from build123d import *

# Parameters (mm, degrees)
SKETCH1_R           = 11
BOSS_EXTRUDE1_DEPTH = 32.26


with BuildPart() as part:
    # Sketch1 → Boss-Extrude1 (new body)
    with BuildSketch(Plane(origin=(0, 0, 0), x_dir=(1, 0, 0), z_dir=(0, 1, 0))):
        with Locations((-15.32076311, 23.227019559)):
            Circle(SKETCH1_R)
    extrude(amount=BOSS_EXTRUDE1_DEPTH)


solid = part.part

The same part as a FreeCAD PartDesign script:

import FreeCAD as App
import Part
import Sketcher
Q = App.Units.Quantity

doc = App.newDocument("Part")
params = doc.addObject("Spreadsheet::Sheet", "Params")
for row, (alias, value) in enumerate([
    ("sketch1_diameter", "22 mm"),
    ("pad1_length", "32.26 mm"),
], start=1):
    params.set(f"A{row}", alias)
    params.set(f"B{row}", "=" + value)
    params.setAlias(f"B{row}", alias)

body = doc.addObject("PartDesign::Body", "Body")

sketch1 = body.newObject("Sketcher::SketchObject", "Sketch")
sketch1.AttachmentSupport = (doc.getObject("XZ_Plane"), [""])
sketch1.MapMode = "FlatFace"
sketch1.addGeometry(Part.Circle(App.Vector(-15, -23, 0), App.Vector(0, 0, 1), 11), False)
sketch1.addConstraint(Sketcher.Constraint("Diameter", 0, Q("22 mm")))
sketch1.addConstraint(Sketcher.Constraint("DistanceY", 0, 3, -1, 1, Q("23.22702 mm")))
sketch1.addConstraint(Sketcher.Constraint("DistanceX", 0, 3, -1, 1, Q("15.320763 mm")))
sketch1.setExpression("Constraints[0]", "Params.sketch1_diameter")
pad1 = body.newObject("PartDesign::Pad", "Pad")
pad1.Profile = sketch1
pad1.setExpression("Length", "Params.pad1_length")
pad1.Reversed = True

doc.recompute()
